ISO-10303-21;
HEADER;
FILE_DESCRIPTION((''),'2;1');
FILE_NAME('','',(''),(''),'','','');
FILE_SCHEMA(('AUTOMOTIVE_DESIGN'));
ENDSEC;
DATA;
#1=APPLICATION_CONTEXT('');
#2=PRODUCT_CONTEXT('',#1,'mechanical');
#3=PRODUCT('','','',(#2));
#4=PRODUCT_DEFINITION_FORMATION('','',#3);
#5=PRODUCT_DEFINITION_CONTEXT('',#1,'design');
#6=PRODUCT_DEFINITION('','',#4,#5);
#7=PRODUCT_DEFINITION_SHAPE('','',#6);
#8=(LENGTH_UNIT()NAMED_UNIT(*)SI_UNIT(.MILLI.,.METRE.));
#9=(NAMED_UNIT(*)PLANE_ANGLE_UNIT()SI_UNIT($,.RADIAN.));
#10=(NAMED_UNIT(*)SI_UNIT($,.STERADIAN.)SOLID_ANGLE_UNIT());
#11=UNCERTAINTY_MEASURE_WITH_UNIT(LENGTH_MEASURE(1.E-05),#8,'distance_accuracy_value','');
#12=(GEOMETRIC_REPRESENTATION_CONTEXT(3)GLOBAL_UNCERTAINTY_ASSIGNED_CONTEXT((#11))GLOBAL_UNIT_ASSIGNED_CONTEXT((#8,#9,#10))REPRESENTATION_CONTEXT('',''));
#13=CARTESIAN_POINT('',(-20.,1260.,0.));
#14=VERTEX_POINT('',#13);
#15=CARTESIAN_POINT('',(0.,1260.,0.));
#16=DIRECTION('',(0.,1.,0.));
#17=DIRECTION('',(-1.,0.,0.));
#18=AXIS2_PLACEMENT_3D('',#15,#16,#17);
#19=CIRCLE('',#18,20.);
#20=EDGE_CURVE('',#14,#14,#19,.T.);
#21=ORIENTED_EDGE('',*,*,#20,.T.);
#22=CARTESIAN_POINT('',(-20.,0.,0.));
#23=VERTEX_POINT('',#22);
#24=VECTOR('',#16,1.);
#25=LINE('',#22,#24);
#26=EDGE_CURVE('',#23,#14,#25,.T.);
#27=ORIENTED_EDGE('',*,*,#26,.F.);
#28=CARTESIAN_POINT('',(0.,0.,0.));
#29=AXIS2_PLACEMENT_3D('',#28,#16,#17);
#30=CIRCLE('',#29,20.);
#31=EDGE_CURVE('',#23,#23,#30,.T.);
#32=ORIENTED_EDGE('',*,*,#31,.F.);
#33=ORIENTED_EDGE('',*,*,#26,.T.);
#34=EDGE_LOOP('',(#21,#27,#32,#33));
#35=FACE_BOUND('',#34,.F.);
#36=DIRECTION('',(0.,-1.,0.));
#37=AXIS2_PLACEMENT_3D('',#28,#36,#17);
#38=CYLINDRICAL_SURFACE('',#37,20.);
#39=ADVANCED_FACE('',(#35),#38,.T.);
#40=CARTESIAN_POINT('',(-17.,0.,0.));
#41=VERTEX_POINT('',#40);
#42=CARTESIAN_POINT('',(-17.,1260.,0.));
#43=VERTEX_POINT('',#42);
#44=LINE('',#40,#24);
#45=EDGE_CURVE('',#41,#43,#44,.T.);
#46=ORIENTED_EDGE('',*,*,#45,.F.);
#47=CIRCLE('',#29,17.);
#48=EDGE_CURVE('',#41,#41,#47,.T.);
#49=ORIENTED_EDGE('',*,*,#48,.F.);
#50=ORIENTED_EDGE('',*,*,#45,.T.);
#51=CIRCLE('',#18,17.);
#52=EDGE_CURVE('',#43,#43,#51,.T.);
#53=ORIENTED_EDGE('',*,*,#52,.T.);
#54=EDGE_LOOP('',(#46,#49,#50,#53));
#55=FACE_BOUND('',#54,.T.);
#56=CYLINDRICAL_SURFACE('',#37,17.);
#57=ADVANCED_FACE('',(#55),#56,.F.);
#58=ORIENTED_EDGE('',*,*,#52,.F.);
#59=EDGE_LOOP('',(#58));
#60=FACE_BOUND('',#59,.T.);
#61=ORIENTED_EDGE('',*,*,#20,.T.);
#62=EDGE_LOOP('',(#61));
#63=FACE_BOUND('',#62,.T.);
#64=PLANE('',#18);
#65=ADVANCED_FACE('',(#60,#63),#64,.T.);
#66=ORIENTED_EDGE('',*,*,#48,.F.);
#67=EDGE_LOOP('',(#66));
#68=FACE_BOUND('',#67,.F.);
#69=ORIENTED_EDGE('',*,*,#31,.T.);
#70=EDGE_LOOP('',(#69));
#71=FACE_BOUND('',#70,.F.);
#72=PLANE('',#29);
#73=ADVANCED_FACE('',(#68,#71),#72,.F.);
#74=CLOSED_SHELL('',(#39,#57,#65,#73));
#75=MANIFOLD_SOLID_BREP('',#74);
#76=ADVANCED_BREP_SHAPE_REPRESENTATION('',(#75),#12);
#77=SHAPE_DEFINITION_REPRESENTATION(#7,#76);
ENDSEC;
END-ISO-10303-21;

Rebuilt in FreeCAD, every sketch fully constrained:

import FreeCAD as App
import Part
import Sketcher
from FreeCAD import Vector

doc = App.newDocument("Part")
body = doc.addObject("PartDesign::Body", "Body")

# Sketch on XZ plane
sketch1 = doc.addObject("Sketcher::SketchObject", "Sketch")
body.addObject(sketch1)
sketch1.AttachmentSupport = (doc.XZ_Plane, [""])
sketch1.MapMode = "FlatFace"
sketch1.addGeometry([
    Part.Circle(Vector(0, 0, 0), Vector(0, 0, 1), 20),
    Part.Circle(Vector(0, 0, 0), Vector(0, 0, 1), 17),
], False)
sketch1.addConstraint([
    Sketcher.Constraint("Coincident", 0, 3, -1, 1),
    Sketcher.Constraint("Coincident", 1, 3, -1, 1),
    Sketcher.Constraint("Diameter", 0, 40.0),
    Sketcher.Constraint("Diameter", 1, 34.0),
])
pad1 = doc.addObject("PartDesign::Pad", "Pad")
body.addObject(pad1)
pad1.Profile = sketch1
pad1.Length = 1260
pad1.Reversed = True

doc.recompute()
